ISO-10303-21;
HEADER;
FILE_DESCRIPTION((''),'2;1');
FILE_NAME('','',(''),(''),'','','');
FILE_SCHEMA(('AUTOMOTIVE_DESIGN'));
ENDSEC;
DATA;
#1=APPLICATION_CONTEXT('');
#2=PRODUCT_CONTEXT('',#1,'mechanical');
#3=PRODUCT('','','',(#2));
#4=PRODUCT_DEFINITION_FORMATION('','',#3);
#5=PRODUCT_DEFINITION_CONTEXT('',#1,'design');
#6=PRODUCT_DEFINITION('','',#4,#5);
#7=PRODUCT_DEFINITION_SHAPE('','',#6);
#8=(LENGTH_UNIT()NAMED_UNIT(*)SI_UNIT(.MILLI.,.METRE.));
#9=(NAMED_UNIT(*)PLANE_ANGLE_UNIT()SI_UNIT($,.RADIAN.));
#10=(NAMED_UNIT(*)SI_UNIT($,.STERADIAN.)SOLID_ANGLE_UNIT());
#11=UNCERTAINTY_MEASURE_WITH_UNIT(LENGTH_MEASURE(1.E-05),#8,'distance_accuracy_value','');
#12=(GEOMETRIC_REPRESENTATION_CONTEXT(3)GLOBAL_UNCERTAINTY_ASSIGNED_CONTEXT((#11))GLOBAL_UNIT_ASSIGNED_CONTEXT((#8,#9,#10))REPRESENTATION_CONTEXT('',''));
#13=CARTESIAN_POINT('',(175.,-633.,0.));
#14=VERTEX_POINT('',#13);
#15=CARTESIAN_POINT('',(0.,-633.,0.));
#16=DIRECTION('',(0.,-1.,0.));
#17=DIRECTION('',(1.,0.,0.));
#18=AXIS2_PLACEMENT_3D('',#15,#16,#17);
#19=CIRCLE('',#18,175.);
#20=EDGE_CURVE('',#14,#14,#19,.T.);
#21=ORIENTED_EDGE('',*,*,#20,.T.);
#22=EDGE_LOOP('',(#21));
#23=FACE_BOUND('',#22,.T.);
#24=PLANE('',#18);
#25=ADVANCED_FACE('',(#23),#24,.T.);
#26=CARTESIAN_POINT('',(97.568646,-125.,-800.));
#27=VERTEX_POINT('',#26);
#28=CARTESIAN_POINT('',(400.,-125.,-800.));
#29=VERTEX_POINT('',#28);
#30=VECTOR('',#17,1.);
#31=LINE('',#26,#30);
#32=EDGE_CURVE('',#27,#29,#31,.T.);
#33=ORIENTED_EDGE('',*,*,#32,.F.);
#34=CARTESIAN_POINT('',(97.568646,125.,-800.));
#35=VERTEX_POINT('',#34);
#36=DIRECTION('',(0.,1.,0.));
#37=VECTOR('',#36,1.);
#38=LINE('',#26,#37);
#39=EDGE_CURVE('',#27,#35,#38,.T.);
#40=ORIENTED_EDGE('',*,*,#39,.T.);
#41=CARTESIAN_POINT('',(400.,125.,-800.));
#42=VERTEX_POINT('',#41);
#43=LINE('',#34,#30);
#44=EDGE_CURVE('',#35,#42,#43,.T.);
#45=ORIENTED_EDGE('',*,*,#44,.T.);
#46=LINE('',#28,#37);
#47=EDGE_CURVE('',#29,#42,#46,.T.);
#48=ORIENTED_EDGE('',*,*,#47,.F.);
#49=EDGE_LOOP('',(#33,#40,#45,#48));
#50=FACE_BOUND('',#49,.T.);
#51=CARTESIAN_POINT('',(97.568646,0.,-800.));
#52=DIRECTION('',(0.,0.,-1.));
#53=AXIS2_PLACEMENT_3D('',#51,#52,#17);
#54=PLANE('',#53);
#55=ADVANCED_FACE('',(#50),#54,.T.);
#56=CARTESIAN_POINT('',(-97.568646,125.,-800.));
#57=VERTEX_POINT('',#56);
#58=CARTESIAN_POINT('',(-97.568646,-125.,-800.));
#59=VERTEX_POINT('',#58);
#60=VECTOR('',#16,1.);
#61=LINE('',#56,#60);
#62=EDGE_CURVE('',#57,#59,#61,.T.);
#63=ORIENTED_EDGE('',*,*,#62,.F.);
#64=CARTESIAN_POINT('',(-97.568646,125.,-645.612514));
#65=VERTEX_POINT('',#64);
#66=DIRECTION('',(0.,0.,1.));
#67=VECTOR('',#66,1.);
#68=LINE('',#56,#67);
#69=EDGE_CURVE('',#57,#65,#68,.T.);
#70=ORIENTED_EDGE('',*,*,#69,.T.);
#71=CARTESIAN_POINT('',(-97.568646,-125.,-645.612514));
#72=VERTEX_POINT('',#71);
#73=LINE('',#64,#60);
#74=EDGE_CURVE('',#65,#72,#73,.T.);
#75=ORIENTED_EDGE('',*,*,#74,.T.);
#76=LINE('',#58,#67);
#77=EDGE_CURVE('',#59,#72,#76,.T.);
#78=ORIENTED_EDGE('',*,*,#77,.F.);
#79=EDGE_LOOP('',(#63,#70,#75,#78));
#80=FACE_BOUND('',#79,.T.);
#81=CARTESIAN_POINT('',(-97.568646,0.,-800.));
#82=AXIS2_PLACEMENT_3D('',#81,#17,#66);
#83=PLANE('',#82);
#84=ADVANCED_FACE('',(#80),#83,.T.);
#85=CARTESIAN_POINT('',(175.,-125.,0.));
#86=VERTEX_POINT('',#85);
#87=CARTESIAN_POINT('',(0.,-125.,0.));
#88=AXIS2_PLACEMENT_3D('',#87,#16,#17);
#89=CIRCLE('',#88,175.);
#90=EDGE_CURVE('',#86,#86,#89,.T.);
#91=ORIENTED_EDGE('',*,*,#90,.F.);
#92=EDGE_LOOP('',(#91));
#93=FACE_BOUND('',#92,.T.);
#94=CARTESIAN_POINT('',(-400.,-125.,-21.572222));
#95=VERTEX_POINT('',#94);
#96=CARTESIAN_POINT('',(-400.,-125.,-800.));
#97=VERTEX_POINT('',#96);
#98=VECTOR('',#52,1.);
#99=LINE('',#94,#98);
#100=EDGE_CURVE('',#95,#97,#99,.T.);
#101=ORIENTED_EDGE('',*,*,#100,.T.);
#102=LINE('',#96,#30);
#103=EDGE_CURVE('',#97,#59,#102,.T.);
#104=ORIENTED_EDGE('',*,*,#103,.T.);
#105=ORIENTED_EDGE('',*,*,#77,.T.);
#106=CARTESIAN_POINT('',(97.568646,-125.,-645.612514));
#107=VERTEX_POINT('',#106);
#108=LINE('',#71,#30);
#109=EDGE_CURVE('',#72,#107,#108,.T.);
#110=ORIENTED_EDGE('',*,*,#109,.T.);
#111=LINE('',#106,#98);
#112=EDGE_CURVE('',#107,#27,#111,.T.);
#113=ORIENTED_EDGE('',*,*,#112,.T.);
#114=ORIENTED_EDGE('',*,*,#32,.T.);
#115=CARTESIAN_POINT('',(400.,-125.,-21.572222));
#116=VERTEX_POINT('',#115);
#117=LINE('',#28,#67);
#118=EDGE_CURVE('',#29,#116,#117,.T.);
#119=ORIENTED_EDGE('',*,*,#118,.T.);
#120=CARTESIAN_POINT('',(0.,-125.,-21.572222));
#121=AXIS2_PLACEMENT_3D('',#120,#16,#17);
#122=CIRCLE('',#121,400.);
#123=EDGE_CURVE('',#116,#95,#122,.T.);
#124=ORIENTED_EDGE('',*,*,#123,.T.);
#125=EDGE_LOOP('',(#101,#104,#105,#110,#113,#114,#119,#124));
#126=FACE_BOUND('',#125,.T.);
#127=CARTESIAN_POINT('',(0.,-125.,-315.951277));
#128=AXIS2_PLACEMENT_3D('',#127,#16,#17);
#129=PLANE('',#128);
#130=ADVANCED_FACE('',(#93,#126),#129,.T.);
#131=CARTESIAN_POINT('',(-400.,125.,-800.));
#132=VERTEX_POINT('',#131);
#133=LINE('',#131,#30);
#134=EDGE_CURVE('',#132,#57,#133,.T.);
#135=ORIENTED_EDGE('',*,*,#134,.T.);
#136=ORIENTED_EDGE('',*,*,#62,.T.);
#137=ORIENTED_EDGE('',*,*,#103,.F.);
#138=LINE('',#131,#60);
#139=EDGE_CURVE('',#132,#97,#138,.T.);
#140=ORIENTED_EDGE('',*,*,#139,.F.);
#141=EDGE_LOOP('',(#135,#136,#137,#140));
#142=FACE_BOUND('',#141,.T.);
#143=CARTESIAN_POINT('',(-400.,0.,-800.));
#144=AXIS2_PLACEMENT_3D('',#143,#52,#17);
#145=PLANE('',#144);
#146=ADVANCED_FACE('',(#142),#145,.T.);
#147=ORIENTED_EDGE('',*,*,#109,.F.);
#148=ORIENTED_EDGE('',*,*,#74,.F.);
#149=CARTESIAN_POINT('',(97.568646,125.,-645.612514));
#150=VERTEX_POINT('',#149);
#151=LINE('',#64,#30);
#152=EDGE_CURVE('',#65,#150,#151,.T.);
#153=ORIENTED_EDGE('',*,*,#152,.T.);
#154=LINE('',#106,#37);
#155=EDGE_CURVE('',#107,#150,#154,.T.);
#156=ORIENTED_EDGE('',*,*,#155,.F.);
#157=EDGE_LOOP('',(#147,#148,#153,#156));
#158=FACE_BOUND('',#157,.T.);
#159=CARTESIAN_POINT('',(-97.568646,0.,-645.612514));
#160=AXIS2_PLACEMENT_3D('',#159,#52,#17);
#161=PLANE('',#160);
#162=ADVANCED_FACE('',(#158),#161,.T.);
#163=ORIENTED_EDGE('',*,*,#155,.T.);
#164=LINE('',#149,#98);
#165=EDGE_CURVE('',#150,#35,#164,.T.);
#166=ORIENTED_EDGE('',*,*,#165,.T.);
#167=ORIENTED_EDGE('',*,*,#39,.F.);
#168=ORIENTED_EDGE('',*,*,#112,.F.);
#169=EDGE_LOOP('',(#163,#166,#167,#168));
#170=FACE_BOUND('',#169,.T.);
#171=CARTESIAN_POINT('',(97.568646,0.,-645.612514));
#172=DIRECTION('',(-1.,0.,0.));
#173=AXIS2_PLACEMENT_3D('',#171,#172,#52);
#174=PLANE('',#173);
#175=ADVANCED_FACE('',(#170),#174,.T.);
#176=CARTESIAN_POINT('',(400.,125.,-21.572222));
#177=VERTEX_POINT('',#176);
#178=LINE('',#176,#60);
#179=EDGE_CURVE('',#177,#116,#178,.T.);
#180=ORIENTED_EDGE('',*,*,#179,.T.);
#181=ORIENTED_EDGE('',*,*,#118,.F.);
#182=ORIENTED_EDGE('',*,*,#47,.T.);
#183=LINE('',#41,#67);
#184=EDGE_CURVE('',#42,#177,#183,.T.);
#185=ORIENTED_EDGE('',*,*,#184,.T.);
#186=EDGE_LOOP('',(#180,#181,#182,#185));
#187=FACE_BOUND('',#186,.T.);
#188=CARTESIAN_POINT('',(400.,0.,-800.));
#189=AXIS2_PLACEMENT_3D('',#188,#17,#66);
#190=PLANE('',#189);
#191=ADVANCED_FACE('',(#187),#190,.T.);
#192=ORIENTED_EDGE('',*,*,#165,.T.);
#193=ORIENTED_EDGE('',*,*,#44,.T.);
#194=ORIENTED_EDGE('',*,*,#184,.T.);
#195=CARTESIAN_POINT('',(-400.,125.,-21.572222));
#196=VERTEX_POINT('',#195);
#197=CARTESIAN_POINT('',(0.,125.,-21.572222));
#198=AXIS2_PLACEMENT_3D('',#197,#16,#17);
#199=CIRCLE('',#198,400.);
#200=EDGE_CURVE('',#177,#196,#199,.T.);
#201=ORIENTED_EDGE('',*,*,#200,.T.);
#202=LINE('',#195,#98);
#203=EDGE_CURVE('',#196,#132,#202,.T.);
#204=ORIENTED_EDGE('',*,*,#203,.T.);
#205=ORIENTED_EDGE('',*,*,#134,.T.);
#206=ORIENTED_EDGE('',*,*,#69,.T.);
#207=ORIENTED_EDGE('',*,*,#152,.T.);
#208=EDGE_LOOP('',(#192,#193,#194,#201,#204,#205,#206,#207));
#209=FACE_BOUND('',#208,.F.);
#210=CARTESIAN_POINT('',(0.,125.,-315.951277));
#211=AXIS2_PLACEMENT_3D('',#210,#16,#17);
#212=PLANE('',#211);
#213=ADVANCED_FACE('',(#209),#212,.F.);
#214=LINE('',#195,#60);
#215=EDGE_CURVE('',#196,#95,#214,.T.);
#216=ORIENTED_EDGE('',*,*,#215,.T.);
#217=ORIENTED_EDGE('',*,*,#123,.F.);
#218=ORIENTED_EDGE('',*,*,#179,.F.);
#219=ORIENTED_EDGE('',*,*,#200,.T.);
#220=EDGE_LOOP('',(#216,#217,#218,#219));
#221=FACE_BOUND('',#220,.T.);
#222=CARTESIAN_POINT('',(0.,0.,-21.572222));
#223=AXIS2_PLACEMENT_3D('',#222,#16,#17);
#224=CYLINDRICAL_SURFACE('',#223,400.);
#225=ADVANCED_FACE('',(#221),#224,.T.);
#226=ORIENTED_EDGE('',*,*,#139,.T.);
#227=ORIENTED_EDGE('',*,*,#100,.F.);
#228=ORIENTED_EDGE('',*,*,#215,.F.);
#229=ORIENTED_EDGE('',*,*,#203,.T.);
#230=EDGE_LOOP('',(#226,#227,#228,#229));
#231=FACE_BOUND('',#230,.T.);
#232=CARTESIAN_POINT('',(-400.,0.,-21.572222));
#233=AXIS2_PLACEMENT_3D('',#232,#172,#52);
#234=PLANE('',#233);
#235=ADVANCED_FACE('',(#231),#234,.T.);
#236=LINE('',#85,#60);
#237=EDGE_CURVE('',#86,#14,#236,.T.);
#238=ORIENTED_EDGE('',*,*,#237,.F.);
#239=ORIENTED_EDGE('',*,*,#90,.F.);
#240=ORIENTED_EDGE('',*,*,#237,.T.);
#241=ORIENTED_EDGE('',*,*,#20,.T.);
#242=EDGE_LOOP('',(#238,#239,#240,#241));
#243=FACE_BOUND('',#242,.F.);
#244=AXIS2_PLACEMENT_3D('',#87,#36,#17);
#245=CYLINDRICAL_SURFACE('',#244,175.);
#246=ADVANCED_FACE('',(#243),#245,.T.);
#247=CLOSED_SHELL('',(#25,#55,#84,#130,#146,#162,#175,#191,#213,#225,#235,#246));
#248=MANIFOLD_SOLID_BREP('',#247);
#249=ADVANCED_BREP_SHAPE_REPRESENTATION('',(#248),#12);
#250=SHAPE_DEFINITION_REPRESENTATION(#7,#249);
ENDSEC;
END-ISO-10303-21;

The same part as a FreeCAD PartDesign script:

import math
import FreeCAD as App
import Part
import Sketcher
from FreeCAD import Vector
Q = App.Units.Quantity

doc = App.newDocument("Part")
body = doc.addObject("PartDesign::Body", "Body")

# Sketch on XZ plane
sketch1 = body.newObject("Sketcher::SketchObject", "Sketch")
sketch1.AttachmentSupport = (doc.getObject("XZ_Plane"), [""])
sketch1.MapMode = "FlatFace"
sketch1.addGeometry([
    Part.LineSegment(Vector(400, -800, 0), Vector(400, -22, 0)),  # 0
    Part.ArcOfCircle(Part.Circle(Vector(0, -22, 0), Vector(0, 0, 1), 400), math.radians(0), math.radians(180)),  # 1
    Part.LineSegment(Vector(-400, -22, 0), Vector(-400, -800, 0)),  # 2
    Part.LineSegment(Vector(-400, -800, 0), Vector(-98, -800, 0)),  # 3
    Part.LineSegment(Vector(-98, -800, 0), Vector(-98, -646, 0)),  # 4
    Part.LineSegment(Vector(-98, -646, 0), Vector(98, -646, 0)),  # 5
    Part.LineSegment(Vector(98, -646, 0), Vector(98, -800, 0)),  # 6
    Part.LineSegment(Vector(98, -800, 0), Vector(400, -800, 0)),  # 7
], False)
sketch1.addConstraint([
    Sketcher.Constraint("Tangent", 0, 2, 1, 1),
    Sketcher.Constraint("Tangent", 1, 2, 2, 1),
    Sketcher.Constraint("Coincident", 2, 2, 3, 1),
    Sketcher.Constraint("Coincident", 3, 2, 4, 1),
    Sketcher.Constraint("Coincident", 4, 2, 5, 1),
    Sketcher.Constraint("Coincident", 5, 2, 6, 1),
    Sketcher.Constraint("Coincident", 6, 2, 7, 1),
    Sketcher.Constraint("Coincident", 7, 2, 0, 1),
    Sketcher.Constraint("Vertical", 0),
    Sketcher.Constraint("Vertical", 2),
    Sketcher.Constraint("Horizontal", 3),
    Sketcher.Constraint("Vertical", 4),
    Sketcher.Constraint("Horizontal", 5),
    Sketcher.Constraint("Vertical", 6),
    Sketcher.Constraint("Horizontal", 7),
    Sketcher.Constraint("Symmetric", 3, 2, 6, 2, -2),
    Sketcher.Constraint("PointOnObject", 1, 3, -2),
    Sketcher.Constraint("Radius", 1, Q("400 mm")),
    Sketcher.Constraint("DistanceY", 2, 2, -1, 1, Q("800 mm")),
    Sketcher.Constraint("DistanceX", 5, 1, 5, 2, Q("195.137292 mm")),
    Sketcher.Constraint("DistanceY", 0, 1, 0, 2, Q("778.427778 mm")),
    Sketcher.Constraint("DistanceY", 4, 1, 4, 2, Q("154.387486 mm")),
])
pad1 = body.newObject("PartDesign::Pad", "Pad")
pad1.Profile = sketch1
pad1.Length = 250
pad1.Midplane = True

# Sketch on XZ plane
sketch2 = body.newObject("Sketcher::SketchObject", "Sketch001")
sketch2.AttachmentSupport = (doc.getObject("XZ_Plane"), [""])
sketch2.MapMode = "FlatFace"
sketch2.AttachmentOffset = App.Placement(Vector(0, 0, 125), App.Rotation())
sketch2.addGeometry(Part.Circle(Vector(0, 0, 0), Vector(0, 0, 1), 175), False)
sketch2.addConstraint([
    Sketcher.Constraint("Coincident", 0, 3, -1, 1),
    Sketcher.Constraint("Diameter", 0, Q("350 mm")),
])
pad2 = body.newObject("PartDesign::Pad", "Pad001")
pad2.Profile = sketch2
pad2.Length = 508

doc.recompute()
